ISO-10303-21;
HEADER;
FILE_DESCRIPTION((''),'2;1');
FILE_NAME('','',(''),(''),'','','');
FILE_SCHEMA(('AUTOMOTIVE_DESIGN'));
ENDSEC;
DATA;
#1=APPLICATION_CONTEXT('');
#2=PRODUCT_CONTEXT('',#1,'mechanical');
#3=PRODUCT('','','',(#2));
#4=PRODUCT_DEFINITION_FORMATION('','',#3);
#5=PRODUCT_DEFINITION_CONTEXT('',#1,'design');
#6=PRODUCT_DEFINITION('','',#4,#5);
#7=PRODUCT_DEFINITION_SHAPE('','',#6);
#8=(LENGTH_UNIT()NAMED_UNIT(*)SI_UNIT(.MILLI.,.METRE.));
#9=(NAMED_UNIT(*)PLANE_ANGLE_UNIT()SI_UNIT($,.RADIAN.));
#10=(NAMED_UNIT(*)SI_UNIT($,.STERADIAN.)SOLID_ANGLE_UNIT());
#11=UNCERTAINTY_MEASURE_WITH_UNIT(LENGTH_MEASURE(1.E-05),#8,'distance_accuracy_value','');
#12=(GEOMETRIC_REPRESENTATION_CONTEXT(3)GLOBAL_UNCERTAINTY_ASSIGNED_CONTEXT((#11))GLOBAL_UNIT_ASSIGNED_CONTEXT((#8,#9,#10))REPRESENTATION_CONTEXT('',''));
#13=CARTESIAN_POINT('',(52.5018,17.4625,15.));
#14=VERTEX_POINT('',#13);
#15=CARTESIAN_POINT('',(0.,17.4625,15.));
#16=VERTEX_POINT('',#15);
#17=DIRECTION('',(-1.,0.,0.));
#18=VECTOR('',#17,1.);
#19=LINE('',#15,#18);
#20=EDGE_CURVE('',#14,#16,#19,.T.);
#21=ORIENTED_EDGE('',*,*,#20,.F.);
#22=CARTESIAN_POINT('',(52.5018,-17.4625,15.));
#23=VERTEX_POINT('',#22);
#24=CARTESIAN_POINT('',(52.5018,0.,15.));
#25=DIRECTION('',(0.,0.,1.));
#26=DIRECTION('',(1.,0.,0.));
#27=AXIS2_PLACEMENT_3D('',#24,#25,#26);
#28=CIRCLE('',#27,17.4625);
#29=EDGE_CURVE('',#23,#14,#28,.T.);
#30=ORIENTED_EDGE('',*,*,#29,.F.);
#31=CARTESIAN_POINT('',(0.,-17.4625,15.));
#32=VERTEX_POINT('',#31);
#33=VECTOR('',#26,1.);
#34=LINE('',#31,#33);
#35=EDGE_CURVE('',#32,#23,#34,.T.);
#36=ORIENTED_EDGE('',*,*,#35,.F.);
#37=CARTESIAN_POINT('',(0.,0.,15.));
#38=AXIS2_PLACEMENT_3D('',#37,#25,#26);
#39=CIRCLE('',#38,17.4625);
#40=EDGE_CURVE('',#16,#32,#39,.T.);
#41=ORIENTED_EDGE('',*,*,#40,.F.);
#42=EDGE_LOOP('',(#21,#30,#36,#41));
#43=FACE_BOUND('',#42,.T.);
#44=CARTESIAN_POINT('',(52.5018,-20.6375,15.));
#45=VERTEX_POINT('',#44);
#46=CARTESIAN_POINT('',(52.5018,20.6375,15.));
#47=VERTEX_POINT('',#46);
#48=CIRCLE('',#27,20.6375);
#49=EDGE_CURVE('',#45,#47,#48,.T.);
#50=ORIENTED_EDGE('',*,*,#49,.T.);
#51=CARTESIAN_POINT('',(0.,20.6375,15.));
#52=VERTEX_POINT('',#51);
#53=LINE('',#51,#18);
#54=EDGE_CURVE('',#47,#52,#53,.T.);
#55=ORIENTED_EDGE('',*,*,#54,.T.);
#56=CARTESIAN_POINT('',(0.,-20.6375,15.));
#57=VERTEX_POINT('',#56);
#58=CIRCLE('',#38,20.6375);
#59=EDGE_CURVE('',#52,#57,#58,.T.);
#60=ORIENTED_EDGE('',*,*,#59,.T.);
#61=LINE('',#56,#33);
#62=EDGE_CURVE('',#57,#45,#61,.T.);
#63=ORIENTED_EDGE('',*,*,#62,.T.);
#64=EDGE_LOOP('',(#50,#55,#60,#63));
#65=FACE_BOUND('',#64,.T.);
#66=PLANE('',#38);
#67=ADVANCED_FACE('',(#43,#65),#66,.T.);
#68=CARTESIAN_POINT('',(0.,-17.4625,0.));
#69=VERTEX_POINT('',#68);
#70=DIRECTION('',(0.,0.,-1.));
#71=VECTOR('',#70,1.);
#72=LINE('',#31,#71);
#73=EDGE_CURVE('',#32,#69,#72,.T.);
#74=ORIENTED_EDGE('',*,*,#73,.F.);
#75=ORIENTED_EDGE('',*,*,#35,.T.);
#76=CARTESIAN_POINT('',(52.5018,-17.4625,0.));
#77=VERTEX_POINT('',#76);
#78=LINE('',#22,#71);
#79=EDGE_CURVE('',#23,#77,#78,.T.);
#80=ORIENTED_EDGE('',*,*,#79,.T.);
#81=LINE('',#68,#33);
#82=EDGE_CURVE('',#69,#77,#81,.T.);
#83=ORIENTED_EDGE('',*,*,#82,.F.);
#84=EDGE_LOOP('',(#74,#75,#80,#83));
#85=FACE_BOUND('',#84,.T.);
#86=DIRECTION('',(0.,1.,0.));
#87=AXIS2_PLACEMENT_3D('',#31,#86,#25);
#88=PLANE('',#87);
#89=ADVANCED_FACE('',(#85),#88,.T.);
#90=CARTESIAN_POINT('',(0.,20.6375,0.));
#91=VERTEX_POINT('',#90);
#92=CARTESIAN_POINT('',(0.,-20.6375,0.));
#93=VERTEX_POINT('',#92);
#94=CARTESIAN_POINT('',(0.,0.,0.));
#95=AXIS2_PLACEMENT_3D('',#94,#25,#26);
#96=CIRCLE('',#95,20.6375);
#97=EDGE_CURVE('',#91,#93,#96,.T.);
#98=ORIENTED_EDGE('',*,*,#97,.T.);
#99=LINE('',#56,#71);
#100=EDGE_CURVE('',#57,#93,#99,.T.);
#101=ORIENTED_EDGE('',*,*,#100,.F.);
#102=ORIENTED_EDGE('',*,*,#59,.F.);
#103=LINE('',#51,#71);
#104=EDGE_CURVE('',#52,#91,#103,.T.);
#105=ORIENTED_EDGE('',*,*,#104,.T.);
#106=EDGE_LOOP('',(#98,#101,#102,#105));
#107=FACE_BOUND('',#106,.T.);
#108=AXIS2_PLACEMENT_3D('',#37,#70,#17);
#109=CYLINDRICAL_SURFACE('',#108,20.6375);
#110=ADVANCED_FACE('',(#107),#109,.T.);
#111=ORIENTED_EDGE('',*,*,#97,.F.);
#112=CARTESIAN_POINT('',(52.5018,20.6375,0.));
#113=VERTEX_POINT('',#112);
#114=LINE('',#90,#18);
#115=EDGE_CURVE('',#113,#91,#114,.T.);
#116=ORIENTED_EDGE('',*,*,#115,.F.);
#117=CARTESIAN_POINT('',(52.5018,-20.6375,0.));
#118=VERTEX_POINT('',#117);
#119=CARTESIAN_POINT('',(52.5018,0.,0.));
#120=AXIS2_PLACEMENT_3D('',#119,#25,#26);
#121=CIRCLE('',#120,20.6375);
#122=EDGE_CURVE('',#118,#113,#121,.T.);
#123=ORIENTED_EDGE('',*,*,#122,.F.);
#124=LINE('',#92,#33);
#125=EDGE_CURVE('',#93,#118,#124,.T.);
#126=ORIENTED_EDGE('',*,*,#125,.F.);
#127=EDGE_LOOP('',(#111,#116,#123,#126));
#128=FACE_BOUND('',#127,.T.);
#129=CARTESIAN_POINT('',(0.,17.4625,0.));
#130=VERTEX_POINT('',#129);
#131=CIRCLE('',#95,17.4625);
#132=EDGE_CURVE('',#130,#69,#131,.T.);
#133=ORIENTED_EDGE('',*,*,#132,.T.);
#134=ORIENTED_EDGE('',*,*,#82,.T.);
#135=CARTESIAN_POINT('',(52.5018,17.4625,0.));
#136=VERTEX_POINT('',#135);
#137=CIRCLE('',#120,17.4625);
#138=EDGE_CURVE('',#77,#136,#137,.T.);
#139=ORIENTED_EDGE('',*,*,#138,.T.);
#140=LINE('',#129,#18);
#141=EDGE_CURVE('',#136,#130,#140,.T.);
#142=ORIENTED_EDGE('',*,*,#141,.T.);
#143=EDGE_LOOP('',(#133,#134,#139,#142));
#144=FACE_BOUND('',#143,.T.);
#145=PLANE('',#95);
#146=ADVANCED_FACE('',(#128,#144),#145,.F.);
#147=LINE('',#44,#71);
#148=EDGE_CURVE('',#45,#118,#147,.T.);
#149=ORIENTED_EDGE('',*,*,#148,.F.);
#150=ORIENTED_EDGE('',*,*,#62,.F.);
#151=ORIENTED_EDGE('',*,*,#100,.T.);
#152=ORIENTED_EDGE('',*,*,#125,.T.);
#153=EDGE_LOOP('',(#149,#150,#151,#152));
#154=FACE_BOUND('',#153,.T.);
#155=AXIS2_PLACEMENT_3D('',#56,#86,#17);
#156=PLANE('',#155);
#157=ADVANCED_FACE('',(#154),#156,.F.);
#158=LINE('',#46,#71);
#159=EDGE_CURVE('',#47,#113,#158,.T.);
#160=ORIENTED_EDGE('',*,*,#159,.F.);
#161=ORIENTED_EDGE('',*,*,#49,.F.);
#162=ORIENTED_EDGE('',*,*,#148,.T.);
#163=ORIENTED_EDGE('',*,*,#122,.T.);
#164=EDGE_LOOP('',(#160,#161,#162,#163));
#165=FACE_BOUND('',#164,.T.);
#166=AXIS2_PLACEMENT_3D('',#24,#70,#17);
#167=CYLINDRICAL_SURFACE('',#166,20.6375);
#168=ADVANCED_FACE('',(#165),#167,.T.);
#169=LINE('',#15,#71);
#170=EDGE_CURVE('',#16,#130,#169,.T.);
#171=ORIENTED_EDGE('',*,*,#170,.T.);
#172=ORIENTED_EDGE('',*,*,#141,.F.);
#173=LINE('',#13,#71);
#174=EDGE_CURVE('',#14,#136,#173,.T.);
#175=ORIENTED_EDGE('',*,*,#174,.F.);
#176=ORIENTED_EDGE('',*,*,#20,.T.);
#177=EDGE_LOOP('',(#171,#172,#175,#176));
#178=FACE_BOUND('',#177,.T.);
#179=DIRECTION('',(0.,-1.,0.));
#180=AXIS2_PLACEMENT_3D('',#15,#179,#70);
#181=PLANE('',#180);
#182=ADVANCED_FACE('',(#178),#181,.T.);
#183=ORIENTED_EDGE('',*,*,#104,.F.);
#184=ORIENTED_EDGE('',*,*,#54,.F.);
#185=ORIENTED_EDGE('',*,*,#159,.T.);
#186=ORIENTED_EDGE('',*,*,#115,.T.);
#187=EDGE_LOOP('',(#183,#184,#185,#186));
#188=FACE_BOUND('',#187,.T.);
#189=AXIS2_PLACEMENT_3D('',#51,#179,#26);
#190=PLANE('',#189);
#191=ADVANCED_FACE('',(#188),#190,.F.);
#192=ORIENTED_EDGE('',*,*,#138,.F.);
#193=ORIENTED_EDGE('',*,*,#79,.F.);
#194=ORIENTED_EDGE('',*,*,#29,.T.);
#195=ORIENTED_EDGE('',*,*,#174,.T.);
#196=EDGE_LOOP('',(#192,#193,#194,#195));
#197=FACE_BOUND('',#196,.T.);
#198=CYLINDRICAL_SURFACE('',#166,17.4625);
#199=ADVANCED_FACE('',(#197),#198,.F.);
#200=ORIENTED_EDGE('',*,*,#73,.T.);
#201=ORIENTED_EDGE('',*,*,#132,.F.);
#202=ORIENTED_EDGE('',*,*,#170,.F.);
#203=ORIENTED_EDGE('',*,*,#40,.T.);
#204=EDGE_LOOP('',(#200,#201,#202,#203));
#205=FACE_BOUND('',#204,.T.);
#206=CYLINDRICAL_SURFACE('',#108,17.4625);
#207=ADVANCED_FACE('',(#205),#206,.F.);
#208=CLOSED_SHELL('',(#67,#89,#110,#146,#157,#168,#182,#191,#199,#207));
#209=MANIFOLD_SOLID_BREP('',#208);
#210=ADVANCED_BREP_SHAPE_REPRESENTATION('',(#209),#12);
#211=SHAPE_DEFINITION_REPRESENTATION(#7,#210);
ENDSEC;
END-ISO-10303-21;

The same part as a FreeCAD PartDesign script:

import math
import FreeCAD as App
import Part
import Sketcher
from FreeCAD import Vector
Q = App.Units.Quantity

doc = App.newDocument("Part")
body = doc.addObject("PartDesign::Body", "Body")

sketch1 = body.newObject("Sketcher::SketchObject", "Sketch")
sketch1.AttachmentSupport = (doc.getObject("XY_Plane"), [""])
sketch1.MapMode = "FlatFace"
sketch1.addGeometry(Part.LineSegment(Vector(52.5018, 20.6375, 0), Vector(0, 20.6375, 0)), False)
sketch1.addGeometry(Part.ArcOfCircle(Part.Circle(Vector(0, 0, 0), Vector(0, 0, 1), 20.6375), math.radians(90), math.radians(270)), False)
sketch1.addGeometry(Part.LineSegment(Vector(0, -20.6375, 0), Vector(52.5018, -20.6375, 0)), False)
sketch1.addGeometry(Part.ArcOfCircle(Part.Circle(Vector(52.5018, 0, 0), Vector(0, 0, 1), 20.6375), math.radians(-90), math.radians(90)), False)
sketch1.addGeometry(Part.LineSegment(Vector(0, 17.4625, 0), Vector(52.5018, 17.4625, 0)), False)
sketch1.addGeometry(Part.ArcOfCircle(Part.Circle(Vector(52.5018, 0, 0), Vector(0, 0, 1), 17.4625), math.radians(-90), math.radians(90)), False)
sketch1.addGeometry(Part.LineSegment(Vector(52.5018, -17.4625, 0), Vector(0, -17.4625, 0)), False)
sketch1.addGeometry(Part.ArcOfCircle(Part.Circle(Vector(0, 0, 0), Vector(0, 0, 1), 17.4625), math.radians(90), math.radians(270)), False)
sketch1.addConstraint(Sketcher.Constraint("Tangent", 0, 2, 1, 1))
sketch1.addConstraint(Sketcher.Constraint("Tangent", 1, 2, 2, 1))
sketch1.addConstraint(Sketcher.Constraint("Tangent", 2, 2, 3, 1))
sketch1.addConstraint(Sketcher.Constraint("Tangent", 3, 2, 0, 1))
sketch1.addConstraint(Sketcher.Constraint("Tangent", 4, 2, 5, 2))
sketch1.addConstraint(Sketcher.Constraint("Tangent", 5, 1, 6, 1))
sketch1.addConstraint(Sketcher.Constraint("Tangent", 6, 2, 7, 2))
sketch1.addConstraint(Sketcher.Constraint("Tangent", 7, 1, 4, 1))
sketch1.addConstraint(Sketcher.Constraint("Horizontal", 0))
sketch1.addConstraint(Sketcher.Constraint("Horizontal", 2))
sketch1.addConstraint(Sketcher.Constraint("Horizontal", 4))
sketch1.addConstraint(Sketcher.Constraint("Horizontal", 6))
sketch1.addConstraint(Sketcher.Constraint("Coincident", 1, 3, -1, 1))
sketch1.addConstraint(Sketcher.Constraint("Coincident", 7, 3, -1, 1))
sketch1.addConstraint(Sketcher.Constraint("Vertical", 5, 3, 2, 2))
sketch1.addConstraint(Sketcher.Constraint("Radius", 1, Q("0.8125 in")))
sketch1.addConstraint(Sketcher.Constraint("Radius", 5, Q("0.6875 in")))
sketch1.addConstraint(Sketcher.Constraint("DistanceX", 0, 2, 0, 1, Q("2.067 in")))
pad1 = body.newObject("PartDesign::Pad", "Pad")
pad1.Profile = sketch1
pad1.Length = 15

doc.recompute()
